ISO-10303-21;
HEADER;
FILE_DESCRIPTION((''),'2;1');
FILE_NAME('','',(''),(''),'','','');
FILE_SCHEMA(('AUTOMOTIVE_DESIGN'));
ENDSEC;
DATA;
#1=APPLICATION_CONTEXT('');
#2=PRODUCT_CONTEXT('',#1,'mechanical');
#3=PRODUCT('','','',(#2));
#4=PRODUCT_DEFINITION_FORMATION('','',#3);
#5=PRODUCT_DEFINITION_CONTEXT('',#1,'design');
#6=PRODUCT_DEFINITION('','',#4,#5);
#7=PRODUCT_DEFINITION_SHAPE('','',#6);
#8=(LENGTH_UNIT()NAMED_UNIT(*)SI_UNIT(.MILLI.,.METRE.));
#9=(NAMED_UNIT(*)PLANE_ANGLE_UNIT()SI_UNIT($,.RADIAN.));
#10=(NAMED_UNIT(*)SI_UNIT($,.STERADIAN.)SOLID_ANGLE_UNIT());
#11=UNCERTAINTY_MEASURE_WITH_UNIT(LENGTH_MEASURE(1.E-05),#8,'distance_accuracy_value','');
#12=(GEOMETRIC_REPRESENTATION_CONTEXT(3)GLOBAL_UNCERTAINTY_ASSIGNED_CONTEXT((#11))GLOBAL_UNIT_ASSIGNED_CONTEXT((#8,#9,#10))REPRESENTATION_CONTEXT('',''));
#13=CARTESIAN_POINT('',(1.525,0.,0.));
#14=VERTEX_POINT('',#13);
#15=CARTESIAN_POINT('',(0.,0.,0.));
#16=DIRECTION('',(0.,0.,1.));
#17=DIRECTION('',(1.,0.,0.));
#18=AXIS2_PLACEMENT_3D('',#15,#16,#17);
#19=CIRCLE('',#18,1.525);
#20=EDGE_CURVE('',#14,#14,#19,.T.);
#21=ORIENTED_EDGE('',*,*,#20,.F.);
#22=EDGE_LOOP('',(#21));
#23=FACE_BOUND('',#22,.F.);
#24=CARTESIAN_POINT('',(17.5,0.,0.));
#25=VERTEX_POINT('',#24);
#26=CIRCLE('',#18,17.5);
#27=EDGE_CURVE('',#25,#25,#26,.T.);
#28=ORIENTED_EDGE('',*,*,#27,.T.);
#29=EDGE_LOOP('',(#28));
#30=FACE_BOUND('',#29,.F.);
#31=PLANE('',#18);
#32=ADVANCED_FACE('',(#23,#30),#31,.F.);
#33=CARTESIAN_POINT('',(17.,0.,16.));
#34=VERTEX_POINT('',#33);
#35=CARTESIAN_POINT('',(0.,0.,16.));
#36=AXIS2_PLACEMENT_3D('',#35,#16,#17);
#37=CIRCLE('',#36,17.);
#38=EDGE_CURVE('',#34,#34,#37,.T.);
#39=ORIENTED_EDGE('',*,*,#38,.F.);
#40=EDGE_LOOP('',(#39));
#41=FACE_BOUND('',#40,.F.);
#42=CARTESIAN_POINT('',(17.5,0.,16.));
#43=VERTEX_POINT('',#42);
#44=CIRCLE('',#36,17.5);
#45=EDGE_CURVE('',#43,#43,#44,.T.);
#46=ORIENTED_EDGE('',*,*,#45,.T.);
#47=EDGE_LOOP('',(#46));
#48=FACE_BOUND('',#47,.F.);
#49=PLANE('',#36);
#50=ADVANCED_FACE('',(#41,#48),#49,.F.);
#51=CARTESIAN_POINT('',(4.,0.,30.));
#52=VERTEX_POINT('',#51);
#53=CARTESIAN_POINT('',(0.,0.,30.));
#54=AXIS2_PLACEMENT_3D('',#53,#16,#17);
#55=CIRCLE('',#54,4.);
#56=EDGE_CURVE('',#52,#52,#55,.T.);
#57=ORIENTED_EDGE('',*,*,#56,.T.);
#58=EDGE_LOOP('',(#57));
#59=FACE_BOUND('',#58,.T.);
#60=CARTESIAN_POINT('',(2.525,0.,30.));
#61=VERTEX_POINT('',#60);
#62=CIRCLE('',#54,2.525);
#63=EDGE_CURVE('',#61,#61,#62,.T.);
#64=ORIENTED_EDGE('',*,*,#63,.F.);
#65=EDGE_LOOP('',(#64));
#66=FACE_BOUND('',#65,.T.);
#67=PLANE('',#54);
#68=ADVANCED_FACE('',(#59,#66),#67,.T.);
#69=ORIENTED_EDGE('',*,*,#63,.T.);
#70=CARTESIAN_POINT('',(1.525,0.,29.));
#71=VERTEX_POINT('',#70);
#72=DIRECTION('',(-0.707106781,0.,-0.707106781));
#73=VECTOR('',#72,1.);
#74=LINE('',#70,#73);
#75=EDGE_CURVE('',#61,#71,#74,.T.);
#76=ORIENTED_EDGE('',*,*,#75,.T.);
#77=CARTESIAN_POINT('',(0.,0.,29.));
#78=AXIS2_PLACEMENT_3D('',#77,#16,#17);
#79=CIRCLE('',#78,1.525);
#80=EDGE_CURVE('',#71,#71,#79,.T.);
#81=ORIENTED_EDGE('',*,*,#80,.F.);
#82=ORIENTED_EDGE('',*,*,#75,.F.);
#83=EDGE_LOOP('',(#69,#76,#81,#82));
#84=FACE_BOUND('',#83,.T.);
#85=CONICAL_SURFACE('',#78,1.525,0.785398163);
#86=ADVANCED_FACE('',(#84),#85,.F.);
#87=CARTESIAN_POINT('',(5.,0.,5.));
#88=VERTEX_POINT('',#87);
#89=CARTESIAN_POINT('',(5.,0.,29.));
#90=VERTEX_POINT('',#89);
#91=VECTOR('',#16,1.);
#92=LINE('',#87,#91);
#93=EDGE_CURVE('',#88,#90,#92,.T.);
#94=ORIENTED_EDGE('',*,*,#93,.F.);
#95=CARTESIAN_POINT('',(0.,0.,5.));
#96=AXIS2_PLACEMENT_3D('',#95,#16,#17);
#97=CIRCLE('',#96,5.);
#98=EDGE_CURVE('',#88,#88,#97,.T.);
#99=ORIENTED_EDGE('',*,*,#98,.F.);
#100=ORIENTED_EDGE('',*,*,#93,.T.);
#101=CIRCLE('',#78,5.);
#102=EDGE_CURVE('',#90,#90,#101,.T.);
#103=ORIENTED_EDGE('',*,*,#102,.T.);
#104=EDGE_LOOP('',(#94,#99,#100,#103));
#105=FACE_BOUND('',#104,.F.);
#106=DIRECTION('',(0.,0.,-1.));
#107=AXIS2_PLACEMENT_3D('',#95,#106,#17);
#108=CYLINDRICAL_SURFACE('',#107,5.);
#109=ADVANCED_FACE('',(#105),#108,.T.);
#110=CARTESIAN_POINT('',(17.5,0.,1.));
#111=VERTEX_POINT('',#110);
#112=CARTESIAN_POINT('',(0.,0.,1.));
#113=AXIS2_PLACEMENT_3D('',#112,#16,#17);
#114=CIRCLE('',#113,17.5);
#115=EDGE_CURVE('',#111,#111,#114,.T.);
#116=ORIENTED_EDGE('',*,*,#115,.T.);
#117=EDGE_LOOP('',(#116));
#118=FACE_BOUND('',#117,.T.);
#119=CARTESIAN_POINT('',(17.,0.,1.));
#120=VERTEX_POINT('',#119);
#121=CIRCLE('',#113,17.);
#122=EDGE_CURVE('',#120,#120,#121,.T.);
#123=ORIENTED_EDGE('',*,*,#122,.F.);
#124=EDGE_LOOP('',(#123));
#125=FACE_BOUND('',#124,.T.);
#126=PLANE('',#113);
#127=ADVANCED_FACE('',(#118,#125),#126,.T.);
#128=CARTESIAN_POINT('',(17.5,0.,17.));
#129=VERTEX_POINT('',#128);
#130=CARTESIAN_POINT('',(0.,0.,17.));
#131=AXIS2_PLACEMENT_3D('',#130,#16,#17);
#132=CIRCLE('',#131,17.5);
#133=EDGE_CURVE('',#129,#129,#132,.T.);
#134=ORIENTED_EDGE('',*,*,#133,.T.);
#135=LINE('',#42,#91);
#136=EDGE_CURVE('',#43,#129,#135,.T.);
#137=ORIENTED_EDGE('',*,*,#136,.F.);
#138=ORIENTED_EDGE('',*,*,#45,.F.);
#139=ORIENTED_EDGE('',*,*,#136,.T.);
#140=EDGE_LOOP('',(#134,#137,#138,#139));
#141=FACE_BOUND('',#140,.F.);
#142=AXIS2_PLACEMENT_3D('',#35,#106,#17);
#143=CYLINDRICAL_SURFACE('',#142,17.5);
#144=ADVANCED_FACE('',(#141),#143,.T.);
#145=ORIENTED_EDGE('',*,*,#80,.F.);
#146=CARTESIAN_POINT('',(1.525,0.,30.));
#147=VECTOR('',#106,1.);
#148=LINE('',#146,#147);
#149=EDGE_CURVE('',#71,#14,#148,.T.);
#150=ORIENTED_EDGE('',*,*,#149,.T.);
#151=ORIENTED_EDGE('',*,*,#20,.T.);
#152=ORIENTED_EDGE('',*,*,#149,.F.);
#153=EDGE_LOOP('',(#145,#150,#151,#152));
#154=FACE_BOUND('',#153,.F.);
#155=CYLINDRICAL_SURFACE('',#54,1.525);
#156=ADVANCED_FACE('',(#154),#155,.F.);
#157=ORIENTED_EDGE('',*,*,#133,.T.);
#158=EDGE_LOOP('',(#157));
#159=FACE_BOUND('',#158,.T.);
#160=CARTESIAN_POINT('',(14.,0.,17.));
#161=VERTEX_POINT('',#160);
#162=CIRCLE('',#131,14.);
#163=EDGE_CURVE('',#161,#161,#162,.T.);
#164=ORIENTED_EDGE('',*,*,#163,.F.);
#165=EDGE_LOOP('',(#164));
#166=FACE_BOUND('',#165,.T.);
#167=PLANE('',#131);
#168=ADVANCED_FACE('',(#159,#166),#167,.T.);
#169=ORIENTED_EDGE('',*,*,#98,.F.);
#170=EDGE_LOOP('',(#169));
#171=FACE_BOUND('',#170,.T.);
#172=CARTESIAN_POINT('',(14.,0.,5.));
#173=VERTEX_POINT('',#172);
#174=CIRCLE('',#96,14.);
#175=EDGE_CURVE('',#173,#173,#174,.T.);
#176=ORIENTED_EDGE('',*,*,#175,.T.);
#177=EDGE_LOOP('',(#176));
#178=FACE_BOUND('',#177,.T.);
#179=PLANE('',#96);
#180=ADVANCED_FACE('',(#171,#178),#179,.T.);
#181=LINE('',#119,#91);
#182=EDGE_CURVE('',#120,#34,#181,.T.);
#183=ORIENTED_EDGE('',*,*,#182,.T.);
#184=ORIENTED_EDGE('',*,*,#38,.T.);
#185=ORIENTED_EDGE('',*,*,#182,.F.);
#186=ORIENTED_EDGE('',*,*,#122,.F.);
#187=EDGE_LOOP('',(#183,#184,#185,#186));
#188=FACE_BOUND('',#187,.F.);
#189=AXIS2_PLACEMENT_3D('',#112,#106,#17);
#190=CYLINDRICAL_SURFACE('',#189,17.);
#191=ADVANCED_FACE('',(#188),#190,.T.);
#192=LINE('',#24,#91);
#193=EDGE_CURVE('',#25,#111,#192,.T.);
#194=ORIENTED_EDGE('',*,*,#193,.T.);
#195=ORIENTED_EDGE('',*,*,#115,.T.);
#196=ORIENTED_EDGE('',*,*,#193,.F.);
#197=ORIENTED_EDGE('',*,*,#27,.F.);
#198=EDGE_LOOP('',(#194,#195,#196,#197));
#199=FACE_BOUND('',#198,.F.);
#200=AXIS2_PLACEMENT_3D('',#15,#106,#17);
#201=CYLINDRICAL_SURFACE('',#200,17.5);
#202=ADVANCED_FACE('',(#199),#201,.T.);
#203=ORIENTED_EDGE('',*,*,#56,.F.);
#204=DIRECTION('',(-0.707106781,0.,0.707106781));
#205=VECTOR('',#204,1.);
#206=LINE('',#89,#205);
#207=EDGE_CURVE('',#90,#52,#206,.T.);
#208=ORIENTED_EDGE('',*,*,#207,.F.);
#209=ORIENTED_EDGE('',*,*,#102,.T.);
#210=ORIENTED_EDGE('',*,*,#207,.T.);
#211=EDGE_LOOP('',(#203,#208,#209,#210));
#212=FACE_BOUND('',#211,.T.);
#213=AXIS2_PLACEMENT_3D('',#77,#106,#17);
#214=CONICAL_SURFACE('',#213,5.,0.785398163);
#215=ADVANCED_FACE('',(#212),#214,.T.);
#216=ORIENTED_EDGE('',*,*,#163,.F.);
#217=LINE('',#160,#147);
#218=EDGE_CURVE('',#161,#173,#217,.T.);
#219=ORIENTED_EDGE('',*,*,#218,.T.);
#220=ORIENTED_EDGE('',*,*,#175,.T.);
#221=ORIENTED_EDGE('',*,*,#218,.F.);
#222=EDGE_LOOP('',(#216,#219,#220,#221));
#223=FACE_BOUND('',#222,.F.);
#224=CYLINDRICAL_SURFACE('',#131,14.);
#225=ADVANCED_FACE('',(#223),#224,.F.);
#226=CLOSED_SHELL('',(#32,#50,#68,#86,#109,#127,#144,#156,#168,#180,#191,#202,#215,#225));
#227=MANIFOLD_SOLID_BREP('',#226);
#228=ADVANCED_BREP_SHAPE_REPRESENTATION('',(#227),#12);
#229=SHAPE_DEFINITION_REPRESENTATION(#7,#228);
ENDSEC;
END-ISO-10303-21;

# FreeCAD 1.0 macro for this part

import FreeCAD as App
import Part
import Sketcher

V = App.Vector
Q = App.Units.Quantity


def edges_at(feature, points):
    """Names of the edges that pass closest to the given points."""
    edges = feature.Shape.Edges
    near = lambda p: min(range(len(edges)), key=lambda i: edges[i].distToShape(Part.Vertex(*p))[0])
    return sorted({f"Edge{near(p) + 1}" for p in points})

doc = App.newDocument("Part")
body = doc.addObject("PartDesign::Body", "Body")

sketch1 = doc.addObject("Sketcher::SketchObject", "Sketch")
body.addObject(sketch1)
sketch1.AttachmentSupport = (doc.XY_Plane, [""])
sketch1.MapMode = "FlatFace"
sketch1.addGeometry(Part.Circle(V(0, 0, 0), V(0, 0, 1), 17.5), False)
sketch1.addConstraint(Sketcher.Constraint("Coincident", 0, 3, -1, 1))
sketch1.addConstraint(Sketcher.Constraint("Diameter", 0, Q("35 mm")))
pad1 = doc.addObject("PartDesign::Pad", "Pad")
body.addObject(pad1)
pad1.Profile = sketch1
pad1.Length = 1

sketch2 = doc.addObject("Sketcher::SketchObject", "Sketch001")
body.addObject(sketch2)
sketch2.AttachmentSupport = (doc.XY_Plane, [""])
sketch2.MapMode = "FlatFace"
sketch2.AttachmentOffset = App.Placement(V(0, 0, 1), App.Rotation())
sketch2.addGeometry(Part.Circle(V(0, 0, 0), V(0, 0, 1), 17), False)
sketch2.addConstraint(Sketcher.Constraint("Coincident", 0, 3, -1, 1))
sketch2.addConstraint(Sketcher.Constraint("Diameter", 0, Q("34 mm")))
pad2 = doc.addObject("PartDesign::Pad", "Pad001")
body.addObject(pad2)
pad2.Profile = sketch2
pad2.Length = 15

sketch3 = doc.addObject("Sketcher::SketchObject", "Sketch002")
body.addObject(sketch3)
sketch3.AttachmentSupport = (doc.XY_Plane, [""])
sketch3.MapMode = "FlatFace"
sketch3.AttachmentOffset = App.Placement(V(0, 0, 16), App.Rotation())
sketch3.addGeometry(Part.Circle(V(0, 0, 0), V(0, 0, 1), 17.5), False)
sketch3.addConstraint(Sketcher.Constraint("Coincident", 0, 3, -1, 1))
sketch3.addConstraint(Sketcher.Constraint("Diameter", 0, Q("35 mm")))
pad3 = doc.addObject("PartDesign::Pad", "Pad002")
body.addObject(pad3)
pad3.Profile = sketch3
pad3.Length = 1

sketch4 = doc.addObject("Sketcher::SketchObject", "Sketch003")
body.addObject(sketch4)
sketch4.AttachmentSupport = (doc.XY_Plane, [""])
sketch4.MapMode = "FlatFace"
sketch4.AttachmentOffset = App.Placement(V(0, 0, 17), App.Rotation())
sketch4.addGeometry(Part.Circle(V(0, 0, 0), V(0, 0, 1), 14), False)
sketch4.addConstraint(Sketcher.Constraint("Coincident", 0, 3, -1, 1))
sketch4.addConstraint(Sketcher.Constraint("Diameter", 0, Q("28 mm")))
pocket1 = doc.addObject("PartDesign::Pocket", "Pocket")
body.addObject(pocket1)
pocket1.Profile = sketch4
pocket1.Length = 12

sketch5 = doc.addObject("Sketcher::SketchObject", "Sketch004")
body.addObject(sketch5)
sketch5.AttachmentSupport = (doc.XY_Plane, [""])
sketch5.MapMode = "FlatFace"
sketch5.AttachmentOffset = App.Placement(V(0, 0, 5), App.Rotation())
sketch5.addGeometry(Part.Circle(V(0, 0, 0), V(0, 0, 1), 5), False)
sketch5.addConstraint(Sketcher.Constraint("Coincident", 0, 3, -1, 1))
sketch5.addConstraint(Sketcher.Constraint("Diameter", 0, Q("10 mm")))
pad4 = doc.addObject("PartDesign::Pad", "Pad003")
body.addObject(pad4)
pad4.Profile = sketch5
pad4.Length = 25

sketch6 = doc.addObject("Sketcher::SketchObject", "Sketch005")
body.addObject(sketch6)
sketch6.AttachmentSupport = (doc.XY_Plane, [""])
sketch6.MapMode = "FlatFace"
sketch6.AttachmentOffset = App.Placement(V(0, 0, 30), App.Rotation())
sketch6.addGeometry(Part.Circle(V(0, 0, 0), V(0, 0, 1), 1.525), False)
sketch6.addConstraint(Sketcher.Constraint("Coincident", 0, 3, -1, 1))
sketch6.addConstraint(Sketcher.Constraint("Diameter", 0, Q("3.05 mm")))
pocket2 = doc.addObject("PartDesign::Pocket", "Pocket001")
body.addObject(pocket2)
pocket2.Profile = sketch6
pocket2.Type = "ThroughAll"
doc.recompute()

chamfer = doc.addObject("PartDesign::Chamfer", "Chamfer")
body.addObject(chamfer)
chamfer.Base = (pocket2, edges_at(pocket2, [(-1.525, 0, 30), (-5, 0, 30)]))
chamfer.Size = 1

doc.recompute()
